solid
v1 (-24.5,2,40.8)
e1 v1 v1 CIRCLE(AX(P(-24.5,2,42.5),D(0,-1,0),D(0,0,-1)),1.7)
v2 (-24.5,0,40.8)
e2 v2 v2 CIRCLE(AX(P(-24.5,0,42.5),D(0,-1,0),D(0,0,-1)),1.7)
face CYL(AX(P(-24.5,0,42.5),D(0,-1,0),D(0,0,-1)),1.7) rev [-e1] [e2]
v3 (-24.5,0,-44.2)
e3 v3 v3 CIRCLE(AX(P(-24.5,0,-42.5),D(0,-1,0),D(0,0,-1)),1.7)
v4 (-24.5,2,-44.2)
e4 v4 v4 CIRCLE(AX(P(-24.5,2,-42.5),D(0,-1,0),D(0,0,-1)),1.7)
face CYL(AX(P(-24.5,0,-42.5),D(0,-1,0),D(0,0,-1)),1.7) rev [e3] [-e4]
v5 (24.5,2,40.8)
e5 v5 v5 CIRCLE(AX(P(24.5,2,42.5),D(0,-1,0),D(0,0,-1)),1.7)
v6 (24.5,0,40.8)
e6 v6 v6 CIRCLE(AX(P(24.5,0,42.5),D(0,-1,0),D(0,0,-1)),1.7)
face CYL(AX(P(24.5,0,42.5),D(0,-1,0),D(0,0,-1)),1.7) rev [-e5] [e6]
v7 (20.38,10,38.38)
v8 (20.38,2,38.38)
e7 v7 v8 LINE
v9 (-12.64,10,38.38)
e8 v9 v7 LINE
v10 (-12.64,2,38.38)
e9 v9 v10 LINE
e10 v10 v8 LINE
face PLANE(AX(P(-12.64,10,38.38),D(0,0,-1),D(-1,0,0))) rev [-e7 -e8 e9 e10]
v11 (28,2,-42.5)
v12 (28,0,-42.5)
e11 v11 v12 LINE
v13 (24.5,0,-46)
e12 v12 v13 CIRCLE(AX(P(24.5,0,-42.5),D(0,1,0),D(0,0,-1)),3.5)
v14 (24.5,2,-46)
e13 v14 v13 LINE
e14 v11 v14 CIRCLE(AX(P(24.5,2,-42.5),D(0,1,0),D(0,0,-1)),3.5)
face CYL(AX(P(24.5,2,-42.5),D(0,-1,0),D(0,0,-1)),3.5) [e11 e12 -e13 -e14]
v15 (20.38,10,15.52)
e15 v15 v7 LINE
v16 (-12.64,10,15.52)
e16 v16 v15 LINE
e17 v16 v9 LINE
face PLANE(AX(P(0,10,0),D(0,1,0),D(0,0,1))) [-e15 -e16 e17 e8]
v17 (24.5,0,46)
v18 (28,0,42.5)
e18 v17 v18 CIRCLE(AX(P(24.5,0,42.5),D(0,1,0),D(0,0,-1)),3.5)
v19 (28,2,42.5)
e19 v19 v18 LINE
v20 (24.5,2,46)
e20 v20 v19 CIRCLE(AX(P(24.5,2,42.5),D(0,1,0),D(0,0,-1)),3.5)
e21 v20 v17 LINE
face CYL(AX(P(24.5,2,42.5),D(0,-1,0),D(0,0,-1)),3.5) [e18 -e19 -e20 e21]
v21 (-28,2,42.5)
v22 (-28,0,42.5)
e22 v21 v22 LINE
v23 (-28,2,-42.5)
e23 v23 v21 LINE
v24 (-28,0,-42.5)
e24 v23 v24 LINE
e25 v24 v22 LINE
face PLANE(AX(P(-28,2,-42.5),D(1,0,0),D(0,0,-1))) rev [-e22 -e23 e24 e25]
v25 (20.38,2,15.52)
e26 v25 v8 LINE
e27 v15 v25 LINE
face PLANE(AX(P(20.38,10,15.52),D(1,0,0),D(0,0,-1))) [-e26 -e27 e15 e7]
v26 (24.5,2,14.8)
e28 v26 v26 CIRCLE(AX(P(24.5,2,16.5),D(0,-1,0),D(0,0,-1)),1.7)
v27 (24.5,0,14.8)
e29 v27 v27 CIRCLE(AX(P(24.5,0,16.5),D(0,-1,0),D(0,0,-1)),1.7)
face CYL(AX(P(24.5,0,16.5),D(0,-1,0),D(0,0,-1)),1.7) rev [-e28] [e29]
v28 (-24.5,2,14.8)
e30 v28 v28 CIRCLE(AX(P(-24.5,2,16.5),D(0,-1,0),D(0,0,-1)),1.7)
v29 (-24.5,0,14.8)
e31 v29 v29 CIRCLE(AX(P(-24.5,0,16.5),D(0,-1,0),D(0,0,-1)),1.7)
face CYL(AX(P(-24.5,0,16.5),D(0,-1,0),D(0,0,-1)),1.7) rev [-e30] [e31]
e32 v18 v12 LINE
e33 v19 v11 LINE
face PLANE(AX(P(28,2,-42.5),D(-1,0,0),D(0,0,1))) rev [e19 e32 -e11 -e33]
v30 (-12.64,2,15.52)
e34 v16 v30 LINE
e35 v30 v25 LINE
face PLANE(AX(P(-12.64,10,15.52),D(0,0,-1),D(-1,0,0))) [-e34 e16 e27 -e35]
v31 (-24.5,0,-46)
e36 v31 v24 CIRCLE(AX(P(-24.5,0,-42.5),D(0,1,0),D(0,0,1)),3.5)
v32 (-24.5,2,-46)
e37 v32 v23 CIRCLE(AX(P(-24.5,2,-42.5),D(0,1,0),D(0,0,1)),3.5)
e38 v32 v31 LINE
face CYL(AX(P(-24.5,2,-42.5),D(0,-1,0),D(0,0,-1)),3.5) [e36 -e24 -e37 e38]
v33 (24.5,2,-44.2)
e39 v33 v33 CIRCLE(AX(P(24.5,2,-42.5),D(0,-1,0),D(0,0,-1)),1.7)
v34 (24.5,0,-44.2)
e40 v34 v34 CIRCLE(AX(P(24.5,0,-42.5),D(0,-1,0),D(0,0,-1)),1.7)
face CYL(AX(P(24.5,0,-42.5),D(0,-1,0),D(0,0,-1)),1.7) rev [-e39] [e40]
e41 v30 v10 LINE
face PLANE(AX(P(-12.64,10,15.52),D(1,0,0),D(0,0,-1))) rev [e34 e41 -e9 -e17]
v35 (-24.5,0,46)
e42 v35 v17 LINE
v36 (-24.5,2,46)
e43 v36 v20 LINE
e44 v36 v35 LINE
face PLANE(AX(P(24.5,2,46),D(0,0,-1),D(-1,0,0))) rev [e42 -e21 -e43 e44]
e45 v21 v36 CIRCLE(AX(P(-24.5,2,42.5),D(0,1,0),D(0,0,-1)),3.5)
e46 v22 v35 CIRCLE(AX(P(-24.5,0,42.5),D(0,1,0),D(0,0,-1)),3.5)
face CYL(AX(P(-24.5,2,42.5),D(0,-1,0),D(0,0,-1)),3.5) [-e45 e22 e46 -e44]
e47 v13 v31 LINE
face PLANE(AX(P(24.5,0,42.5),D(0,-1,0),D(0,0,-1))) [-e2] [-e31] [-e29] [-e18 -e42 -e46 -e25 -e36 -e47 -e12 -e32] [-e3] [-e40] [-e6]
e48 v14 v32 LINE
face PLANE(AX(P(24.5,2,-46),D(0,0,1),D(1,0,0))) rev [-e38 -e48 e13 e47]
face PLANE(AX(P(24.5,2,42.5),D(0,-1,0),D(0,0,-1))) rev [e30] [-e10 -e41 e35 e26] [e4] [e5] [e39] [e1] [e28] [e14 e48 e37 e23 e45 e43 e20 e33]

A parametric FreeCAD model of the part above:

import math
import FreeCAD as App
import Part
import Sketcher
from FreeCAD import Vector
Q = App.Units.Quantity

doc = App.newDocument("Part")
body = doc.addObject("PartDesign::Body", "Body")

sketch1 = doc.addObject("Sketcher::SketchObject", "Sketch")
body.addObject(sketch1)
sketch1.AttachmentSupport = (doc.XZ_Plane, [""])
sketch1.MapMode = "FlatFace"
sketch1.addGeometry([
    Part.LineSegment(Vector(24.5, -46, 0), Vector(-24.5, -46, 0)),
    Part.ArcOfCircle(Part.Circle(Vector(-24.5, -42.5, 0), Vector(0, 0, 1), 3.5), math.radians(-180), math.radians(-90)),
    Part.LineSegment(Vector(-28, -42.5, 0), Vector(-28, 42.5, 0)),
    Part.ArcOfCircle(Part.Circle(Vector(-24.5, 42.5, 0), Vector(0, 0, 1), 3.5), math.radians(90), math.radians(180)),
    Part.LineSegment(Vector(-24.5, 46, 0), Vector(24.5, 46, 0)),
    Part.ArcOfCircle(Part.Circle(Vector(24.5, 42.5, 0), Vector(0, 0, 1), 3.5), math.radians(0), math.radians(90)),
    Part.LineSegment(Vector(28, 42.5, 0), Vector(28, -42.5, 0)),
    Part.ArcOfCircle(Part.Circle(Vector(24.5, -42.5, 0), Vector(0, 0, 1), 3.5), math.radians(-90), math.radians(0)),
], False)
sketch1.addConstraint([
    Sketcher.Constraint("Tangent", 0, 2, 1, 2),
    Sketcher.Constraint("Tangent", 1, 1, 2, 1),
    Sketcher.Constraint("Tangent", 2, 2, 3, 2),
    Sketcher.Constraint("Tangent", 3, 1, 4, 1),
    Sketcher.Constraint("Tangent", 4, 2, 5, 2),
    Sketcher.Constraint("Tangent", 5, 1, 6, 1),
    Sketcher.Constraint("Tangent", 6, 2, 7, 2),
    Sketcher.Constraint("Tangent", 7, 1, 0, 1),
    Sketcher.Constraint("Horizontal", 0),
    Sketcher.Constraint("Vertical", 2),
    Sketcher.Constraint("Horizontal", 4),
    Sketcher.Constraint("Vertical", 6),
    Sketcher.Constraint("Equal", 1, 3),
    Sketcher.Constraint("Equal", 3, 5),
    Sketcher.Constraint("Equal", 5, 7),
    Sketcher.Constraint("Symmetric", 1, 3, 5, 3, -1, 1),
    Sketcher.Constraint("Radius", 1, Q("3.5 mm")),
    Sketcher.Constraint("DistanceX", 0, 2, 0, 1, Q("49 mm")),
    Sketcher.Constraint("DistanceY", 2, 1, 2, 2, Q("85 mm")),
])
pad1 = doc.addObject("PartDesign::Pad", "Pad")
body.addObject(pad1)
pad1.Profile = sketch1
pad1.Length = 2
pad1.Reversed = True

sketch2 = doc.addObject("Sketcher::SketchObject", "Sketch001")
body.addObject(sketch2)
sketch2.AttachmentSupport = (doc.XZ_Plane, [""])
sketch2.MapMode = "FlatFace"
sketch2.addGeometry([
    Part.LineSegment(Vector(-13, 38, 0), Vector(-13, 16, 0)),
    Part.LineSegment(Vector(-13, 16, 0), Vector(20, 16, 0)),
    Part.LineSegment(Vector(20, 16, 0), Vector(20, 38, 0)),
    Part.LineSegment(Vector(20, 38, 0), Vector(-13, 38, 0)),
], False)
sketch2.addConstraint([
    Sketcher.Constraint("Coincident", 0, 2, 1, 1),
    Sketcher.Constraint("Coincident", 1, 2, 2, 1),
    Sketcher.Constraint("Coincident", 2, 2, 3, 1),
    Sketcher.Constraint("Coincident", 3, 2, 0, 1),
    Sketcher.Constraint("Vertical", 0),
    Sketcher.Constraint("Horizontal", 1),
    Sketcher.Constraint("Vertical", 2),
    Sketcher.Constraint("Horizontal", 3),
    Sketcher.Constraint("DistanceX", 1, 1, 1, 2, Q("33.02 mm")),
    Sketcher.Constraint("DistanceY", 0, 2, 0, 1, Q("22.86 mm")),
    Sketcher.Constraint("DistanceX", 0, 2, -1, 1, Q("12.64 mm")),
    Sketcher.Constraint("DistanceY", -1, 1, 0, 2, Q("15.52 mm")),
])
pad2 = doc.addObject("PartDesign::Pad", "Pad001")
body.addObject(pad2)
pad2.Profile = sketch2
pad2.Length = 10
pad2.Reversed = True

sketch3 = doc.addObject("Sketcher::SketchObject", "Sketch002")
body.addObject(sketch3)
sketch3.AttachmentSupport = (doc.XZ_Plane, [""])
sketch3.MapMode = "FlatFace"
sketch3.addGeometry([
    Part.Circle(Vector(24.5, 42.5, 0), Vector(0, 0, 1), 1.7),
    Part.Circle(Vector(-24.5, 42.5, 0), Vector(0, 0, 1), 1.7),
    Part.Circle(Vector(-24.5, 16.5, 0), Vector(0, 0, 1), 1.7),
    Part.Circle(Vector(24.5, 16.5, 0), Vector(0, 0, 1), 1.7),
    Part.Circle(Vector(24.5, -42.5, 0), Vector(0, 0, 1), 1.7),
    Part.Circle(Vector(-24.5, -42.5, 0), Vector(0, 0, 1), 1.7),
], False)
sketch3.addConstraint([
    Sketcher.Constraint("Equal", 0, 1),
    Sketcher.Constraint("Equal", 1, 2),
    Sketcher.Constraint("Equal", 2, 3),
    Sketcher.Constraint("Equal", 3, 4),
    Sketcher.Constraint("Equal", 4, 5),
    Sketcher.Constraint("Symmetric", 1, 3, 4, 3, -1, 1),
    Sketcher.Constraint("Symmetric", 0, 3, 5, 3, -1, 1),
    Sketcher.Constraint("Symmetric", 0, 3, 1, 3, -2),
    Sketcher.Constraint("Symmetric", 2, 3, 3, 3, -2),
    Sketcher.Constraint("Vertical", 1, 3, 2, 3),
    Sketcher.Constraint("Diameter", 0, Q("3.4 mm")),
    Sketcher.Constraint("DistanceX", 1, 3, 0, 3, Q("49 mm")),
    Sketcher.Constraint("DistanceY", 2, 3, 1, 3, Q("26 mm")),
    Sketcher.Constraint("DistanceY", 4, 3, 3, 3, Q("59 mm")),
])
doc.recompute()
hole = doc.addObject("PartDesign::Hole", "Hole")
body.addObject(hole)
hole.Profile = sketch3
hole.ThreadType = "None"
hole.Diameter = 3.4
hole.DepthType = "ThroughAll"

doc.recompute()
